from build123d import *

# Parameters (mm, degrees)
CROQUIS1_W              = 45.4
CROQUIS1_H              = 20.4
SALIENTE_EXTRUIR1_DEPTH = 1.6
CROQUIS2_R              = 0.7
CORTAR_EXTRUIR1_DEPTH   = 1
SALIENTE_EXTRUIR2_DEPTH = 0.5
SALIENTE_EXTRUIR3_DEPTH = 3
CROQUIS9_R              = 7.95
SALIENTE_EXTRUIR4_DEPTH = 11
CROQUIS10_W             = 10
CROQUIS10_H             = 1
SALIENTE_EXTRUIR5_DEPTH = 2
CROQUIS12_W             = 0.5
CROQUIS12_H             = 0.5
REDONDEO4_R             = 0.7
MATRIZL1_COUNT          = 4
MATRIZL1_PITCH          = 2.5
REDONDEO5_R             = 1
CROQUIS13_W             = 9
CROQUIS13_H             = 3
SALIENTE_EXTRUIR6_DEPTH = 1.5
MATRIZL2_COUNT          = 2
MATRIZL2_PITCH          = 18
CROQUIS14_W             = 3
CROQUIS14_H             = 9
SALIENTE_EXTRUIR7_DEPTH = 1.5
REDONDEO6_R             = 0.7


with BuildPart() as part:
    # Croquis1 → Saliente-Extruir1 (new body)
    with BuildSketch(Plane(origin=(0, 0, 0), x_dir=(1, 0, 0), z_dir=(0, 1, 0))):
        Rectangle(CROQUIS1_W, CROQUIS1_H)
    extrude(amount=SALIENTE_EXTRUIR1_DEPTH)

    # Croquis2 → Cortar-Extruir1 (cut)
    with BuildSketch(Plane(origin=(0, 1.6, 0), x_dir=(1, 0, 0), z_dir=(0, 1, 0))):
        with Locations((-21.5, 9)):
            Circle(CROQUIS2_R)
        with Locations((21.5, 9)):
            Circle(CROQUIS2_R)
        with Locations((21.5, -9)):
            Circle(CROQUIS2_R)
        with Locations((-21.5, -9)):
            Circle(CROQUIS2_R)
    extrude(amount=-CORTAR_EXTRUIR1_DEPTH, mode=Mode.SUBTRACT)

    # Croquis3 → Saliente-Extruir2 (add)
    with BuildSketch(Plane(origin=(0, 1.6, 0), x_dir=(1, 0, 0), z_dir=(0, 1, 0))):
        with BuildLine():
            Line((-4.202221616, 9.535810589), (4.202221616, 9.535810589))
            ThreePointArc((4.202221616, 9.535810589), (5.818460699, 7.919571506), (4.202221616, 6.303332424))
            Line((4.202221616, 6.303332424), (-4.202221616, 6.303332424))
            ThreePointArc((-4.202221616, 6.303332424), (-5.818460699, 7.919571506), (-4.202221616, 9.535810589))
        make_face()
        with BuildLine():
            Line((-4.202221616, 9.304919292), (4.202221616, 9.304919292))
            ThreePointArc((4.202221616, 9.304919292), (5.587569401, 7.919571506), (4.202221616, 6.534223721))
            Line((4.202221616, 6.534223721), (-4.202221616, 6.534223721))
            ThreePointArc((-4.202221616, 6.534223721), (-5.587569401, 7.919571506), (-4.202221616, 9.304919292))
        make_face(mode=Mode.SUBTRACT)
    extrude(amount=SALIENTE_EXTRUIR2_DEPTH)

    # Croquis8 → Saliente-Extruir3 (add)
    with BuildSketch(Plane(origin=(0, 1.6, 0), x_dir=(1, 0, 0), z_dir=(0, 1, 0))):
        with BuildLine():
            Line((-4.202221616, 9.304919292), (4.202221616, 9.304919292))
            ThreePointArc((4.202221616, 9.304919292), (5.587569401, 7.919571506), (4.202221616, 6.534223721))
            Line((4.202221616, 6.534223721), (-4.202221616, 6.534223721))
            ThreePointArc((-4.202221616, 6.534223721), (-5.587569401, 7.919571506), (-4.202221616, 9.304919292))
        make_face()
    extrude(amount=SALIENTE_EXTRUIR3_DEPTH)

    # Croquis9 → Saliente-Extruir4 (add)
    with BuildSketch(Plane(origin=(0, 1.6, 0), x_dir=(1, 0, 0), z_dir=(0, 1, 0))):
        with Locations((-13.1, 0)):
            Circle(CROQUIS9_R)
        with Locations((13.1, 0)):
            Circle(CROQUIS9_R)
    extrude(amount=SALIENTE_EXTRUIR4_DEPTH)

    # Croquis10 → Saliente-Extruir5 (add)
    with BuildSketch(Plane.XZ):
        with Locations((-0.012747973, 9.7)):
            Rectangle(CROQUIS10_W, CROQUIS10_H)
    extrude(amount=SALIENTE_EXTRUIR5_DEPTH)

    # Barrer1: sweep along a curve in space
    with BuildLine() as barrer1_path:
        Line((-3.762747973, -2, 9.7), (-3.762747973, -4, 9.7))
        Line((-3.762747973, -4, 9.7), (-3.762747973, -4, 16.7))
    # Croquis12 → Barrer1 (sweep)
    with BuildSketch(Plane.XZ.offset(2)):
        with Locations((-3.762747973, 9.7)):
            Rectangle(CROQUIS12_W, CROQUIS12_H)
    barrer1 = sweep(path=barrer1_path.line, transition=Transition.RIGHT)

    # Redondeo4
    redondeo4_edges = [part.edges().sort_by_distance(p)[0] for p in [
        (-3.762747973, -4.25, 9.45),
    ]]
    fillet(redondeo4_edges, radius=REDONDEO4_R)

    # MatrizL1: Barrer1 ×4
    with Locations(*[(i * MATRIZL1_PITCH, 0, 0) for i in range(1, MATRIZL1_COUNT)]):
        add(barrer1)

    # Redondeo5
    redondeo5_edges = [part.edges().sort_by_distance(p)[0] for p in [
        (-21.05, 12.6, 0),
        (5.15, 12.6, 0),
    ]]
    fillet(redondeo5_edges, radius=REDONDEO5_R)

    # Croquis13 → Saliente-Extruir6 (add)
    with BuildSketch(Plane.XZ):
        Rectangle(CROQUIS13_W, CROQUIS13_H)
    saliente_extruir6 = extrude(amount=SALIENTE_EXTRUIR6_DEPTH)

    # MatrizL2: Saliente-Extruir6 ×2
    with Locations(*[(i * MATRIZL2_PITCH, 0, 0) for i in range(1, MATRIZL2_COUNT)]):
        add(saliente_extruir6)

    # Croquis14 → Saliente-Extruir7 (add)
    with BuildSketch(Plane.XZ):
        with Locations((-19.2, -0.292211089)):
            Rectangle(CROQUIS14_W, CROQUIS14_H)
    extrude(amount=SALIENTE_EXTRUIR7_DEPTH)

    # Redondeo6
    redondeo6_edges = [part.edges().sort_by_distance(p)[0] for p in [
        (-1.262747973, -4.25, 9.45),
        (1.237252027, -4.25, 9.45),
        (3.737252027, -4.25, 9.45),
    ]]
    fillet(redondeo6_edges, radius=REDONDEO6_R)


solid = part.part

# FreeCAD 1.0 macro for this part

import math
import FreeCAD as App
import Part
import Sketcher
Q = App.Units.Quantity


def edges_at(feature, points):
    """Names of the edges that pass closest to the given points."""
    edges = feature.Shape.Edges
    near = lambda p: min(range(len(edges)), key=lambda i: edges[i].distToShape(Part.Vertex(*p))[0])
    return sorted({f"Edge{near(p) + 1}" for p in points})

doc = App.newDocument("Part")
body = doc.addObject("PartDesign::Body", "Body")

# Sketch on XZ plane
sketch1 = body.newObject("Sketcher::SketchObject", "Sketch")
sketch1.AttachmentSupport = (doc.getObject("XZ_Plane"), [""])
sketch1.MapMode = "FlatFace"
sketch1.addGeometry([
    Part.LineSegment(App.Vector(-23, -10, 0), App.Vector(-23, 10, 0)),
    Part.LineSegment(App.Vector(-23, 10, 0), App.Vector(23, 10, 0)),
    Part.LineSegment(App.Vector(23, 10, 0), App.Vector(23, -10, 0)),
    Part.LineSegment(App.Vector(23, -10, 0), App.Vector(-23, -10, 0)),
], False)
sketch1.addConstraint([
    Sketcher.Constraint("Coincident", 0, 2, 1, 1),
    Sketcher.Constraint("Coincident", 1, 2, 2, 1),
    Sketcher.Constraint("Coincident", 2, 2, 3, 1),
    Sketcher.Constraint("Coincident", 3, 2, 0, 1),
    Sketcher.Constraint("Vertical", 0),
    Sketcher.Constraint("Horizontal", 1),
    Sketcher.Constraint("Vertical", 2),
    Sketcher.Constraint("Horizontal", 3),
    Sketcher.Constraint("Symmetric", 0, 2, 2, 2, -1, 1),
    Sketcher.Constraint("DistanceX", 1, 1, 1, 2, Q("45.4 mm")),
    Sketcher.Constraint("DistanceY", 0, 1, 0, 2, Q("20.4 mm")),
])
pad1 = body.newObject("PartDesign::Pad", "Pad")
pad1.Profile = sketch1
pad1.Length = 1.6
pad1.Reversed = True

# Sketch on XZ plane
sketch2 = body.newObject("Sketcher::SketchObject", "Sketch001")
sketch2.AttachmentSupport = (doc.getObject("XZ_Plane"), [""])
sketch2.MapMode = "FlatFace"
sketch2.AttachmentOffset = App.Placement(App.Vector(0, 0, -1.6), App.Rotation())
sketch2.addGeometry([
    Part.Circle(App.Vector(-21.5, -9, 0), App.Vector(0, 0, 1), 0.7),
    Part.Circle(App.Vector(21.5, -9, 0), App.Vector(0, 0, 1), 0.7),
    Part.Circle(App.Vector(21.5, 9, 0), App.Vector(0, 0, 1), 0.7),
    Part.Circle(App.Vector(-21.5, 9, 0), App.Vector(0, 0, 1), 0.7),
], False)
sketch2.addConstraint([
    Sketcher.Constraint("Equal", 0, 1),
    Sketcher.Constraint("Equal", 1, 2),
    Sketcher.Constraint("Equal", 2, 3),
    Sketcher.Constraint("Symmetric", 0, 3, 2, 3, -1, 1),
    Sketcher.Constraint("Symmetric", 1, 3, 3, 3, -1, 1),
    Sketcher.Constraint("Symmetric", 0, 3, 1, 3, -2),
    Sketcher.Constraint("Diameter", 0, Q("1.4 mm")),
    Sketcher.Constraint("DistanceY", 0, 3, -1, 1, Q("9 mm")),
    Sketcher.Constraint("DistanceX", 0, 3, 1, 3, Q("43 mm")),
])
pocket1 = body.newObject("PartDesign::Pocket", "Pocket")
pocket1.Profile = sketch2
pocket1.Length = 1
pocket1.Reversed = True

# Sketch on XZ plane
sketch3 = body.newObject("Sketcher::SketchObject", "Sketch002")
sketch3.AttachmentSupport = (doc.getObject("XZ_Plane"), [""])
sketch3.MapMode = "FlatFace"
sketch3.AttachmentOffset = App.Placement(App.Vector(0, 0, -1.6), App.Rotation())
sketch3.addGeometry([
    Part.LineSegment(App.Vector(4.2, -9.5, 0), App.Vector(-4.2, -9.5, 0)),  # 0
    Part.ArcOfCircle(Part.Circle(App.Vector(-4.2, -7.9, 0), App.Vector(0, 0, 1), 1.6), math.radians(90), math.radians(270)),  # 1
    Part.LineSegment(App.Vector(-4.2, -6.3, 0), App.Vector(4.2, -6.3, 0)),  # 2
    Part.ArcOfCircle(Part.Circle(App.Vector(4.2, -7.9, 0), App.Vector(0, 0, 1), 1.6), math.radians(-90), math.radians(90)),  # 3
    Part.LineSegment(App.Vector(-4.2, -9.3, 0), App.Vector(4.2, -9.3, 0)),  # 4
    Part.ArcOfCircle(Part.Circle(App.Vector(4.2, -7.9, 0), App.Vector(0, 0, 1), 1.4), math.radians(-90), math.radians(90)),  # 5
    Part.LineSegment(App.Vector(4.2, -6.5, 0), App.Vector(-4.2, -6.5, 0)),  # 6
    Part.ArcOfCircle(Part.Circle(App.Vector(-4.2, -7.9, 0), App.Vector(0, 0, 1), 1.4), math.radians(90), math.radians(270)),  # 7
], False)
sketch3.addConstraint([
    Sketcher.Constraint("Tangent", 0, 2, 1, 2),
    Sketcher.Constraint("Tangent", 1, 1, 2, 1),
    Sketcher.Constraint("Tangent", 2, 2, 3, 2),
    Sketcher.Constraint("Tangent", 3, 1, 0, 1),
    Sketcher.Constraint("Tangent", 4, 2, 5, 1),
    Sketcher.Constraint("Tangent", 5, 2, 6, 1),
    Sketcher.Constraint("Tangent", 6, 2, 7, 1),
    Sketcher.Constraint("Tangent", 7, 2, 4, 1),
    Sketcher.Constraint("Horizontal", 0),
    Sketcher.Constraint("Horizontal", 2),
    Sketcher.Constraint("Horizontal", 4),
    Sketcher.Constraint("Horizontal", 6),
    Sketcher.Constraint("Coincident", 5, 3, 3, 3),
    Sketcher.Constraint("Vertical", 7, 3, 0, 2),
    Sketcher.Constraint("Radius", 1, Q("1.616239 mm")),
    Sketcher.Constraint("Radius", 5, Q("1.385348 mm")),
    Sketcher.Constraint("DistanceX", 0, 2, 0, 1, Q("8.404443 mm")),
    Sketcher.Constraint("DistanceX", 1, 3, -1, 1, Q("4.202222 mm")),
    Sketcher.Constraint("DistanceY", 1, 3, -1, 1, Q("7.919572 mm")),
])
pad2 = body.newObject("PartDesign::Pad", "Pad001")
pad2.Profile = sketch3
pad2.Length = 0.5
pad2.Reversed = True

# Sketch on XZ plane
sketch4 = body.newObject("Sketcher::SketchObject", "Sketch003")
sketch4.AttachmentSupport = (doc.getObject("XZ_Plane"), [""])
sketch4.MapMode = "FlatFace"
sketch4.AttachmentOffset = App.Placement(App.Vector(0, 0, -1.6), App.Rotation())
sketch4.addGeometry([
    Part.LineSegment(App.Vector(4.2, -9.3, 0), App.Vector(-4.2, -9.3, 0)),
    Part.ArcOfCircle(Part.Circle(App.Vector(-4.2, -7.9, 0), App.Vector(0, 0, 1), 1.4), math.radians(90), math.radians(270)),
    Part.LineSegment(App.Vector(-4.2, -6.5, 0), App.Vector(4.2, -6.5, 0)),
    Part.ArcOfCircle(Part.Circle(App.Vector(4.2, -7.9, 0), App.Vector(0, 0, 1), 1.4), math.radians(-90), math.radians(90)),
], False)
sketch4.addConstraint([
    Sketcher.Constraint("Tangent", 0, 2, 1, 2),
    Sketcher.Constraint("Tangent", 1, 1, 2, 1),
    Sketcher.Constraint("Tangent", 2, 2, 3, 2),
    Sketcher.Constraint("Tangent", 3, 1, 0, 1),
    Sketcher.Constraint("Horizontal", 0),
    Sketcher.Constraint("Horizontal", 2),
    Sketcher.Constraint("Radius", 1, Q("1.385348 mm")),
    Sketcher.Constraint("DistanceX", 0, 2, 0, 1, Q("8.404443 mm")),
    Sketcher.Constraint("DistanceX", 1, 3, -1, 1, Q("4.202222 mm")),
    Sketcher.Constraint("DistanceY", 1, 3, -1, 1, Q("7.919572 mm")),
])
pad3 = body.newObject("PartDesign::Pad", "Pad002")
pad3.Profile = sketch4
pad3.Length = 3
pad3.Reversed = True

# Sketch on XZ plane
sketch5 = body.newObject("Sketcher::SketchObject", "Sketch004")
sketch5.AttachmentSupport = (doc.getObject("XZ_Plane"), [""])
sketch5.MapMode = "FlatFace"
sketch5.AttachmentOffset = App.Placement(App.Vector(0, 0, -1.6), App.Rotation())
sketch5.addGeometry([
    Part.Circle(App.Vector(-13, 0, 0), App.Vector(0, 0, 1), 8),
    Part.Circle(App.Vector(13, 0, 0), App.Vector(0, 0, 1), 8),
], False)
sketch5.addConstraint([
    Sketcher.Constraint("Equal", 0, 1),
    Sketcher.Constraint("Symmetric", 0, 3, 1, 3, -1, 1),
    Sketcher.Constraint("PointOnObject", 0, 3, -1),
    Sketcher.Constraint("Diameter", 0, Q("15.9 mm")),
    Sketcher.Constraint("DistanceX", 0, 3, -1, 1, Q("13.1 mm")),
])
pad4 = body.newObject("PartDesign::Pad", "Pad003")
pad4.Profile = sketch5
pad4.Length = 11
pad4.Reversed = True

# Sketch on XZ plane
sketch6 = body.newObject("Sketcher::SketchObject", "Sketch005")
sketch6.AttachmentSupport = (doc.getObject("XZ_Plane"), [""])
sketch6.MapMode = "FlatFace"
sketch6.addGeometry([
    Part.LineSegment(App.Vector(-5, 10.2, 0), App.Vector(-5, 9.2, 0)),
    Part.LineSegment(App.Vector(-5, 9.2, 0), App.Vector(5, 9.2, 0)),
    Part.LineSegment(App.Vector(5, 9.2, 0), App.Vector(5, 10.2, 0)),
    Part.LineSegment(App.Vector(5, 10.2, 0), App.Vector(-5, 10.2, 0)),
], False)
sketch6.addConstraint([
    Sketcher.Constraint("Coincident", 0, 2, 1, 1),
    Sketcher.Constraint("Coincident", 1, 2, 2, 1),
    Sketcher.Constraint("Coincident", 2, 2, 3, 1),
    Sketcher.Constraint("Coincident", 3, 2, 0, 1),
    Sketcher.Constraint("Vertical", 0),
    Sketcher.Constraint("Horizontal", 1),
    Sketcher.Constraint("Vertical", 2),
    Sketcher.Constraint("Horizontal", 3),
    Sketcher.Constraint("DistanceX", 1, 1, 1, 2, Q("10 mm")),
    Sketcher.Constraint("DistanceY", 0, 2, 0, 1, Q("1 mm")),
    Sketcher.Constraint("DistanceY", -1, 1, 0, 2, Q("9.2 mm")),
    Sketcher.Constraint("DistanceX", 0, 2, -1, 1, Q("5.012748 mm")),
])
pad5 = body.newObject("PartDesign::Pad", "Pad004")
pad5.Profile = sketch6
pad5.Length = 2

# Sketch on XZ plane
sketch7 = body.newObject("Sketcher::SketchObject", "Sketch006")
sketch7.AttachmentSupport = (doc.getObject("XZ_Plane"), [""])
sketch7.MapMode = "FlatFace"
sketch7.AttachmentOffset = App.Placement(App.Vector(0, 0, 2), App.Rotation())
sketch7.addGeometry([
    Part.LineSegment(App.Vector(-4.01, 9.95, 0), App.Vector(-4.01, 9.45, 0)),
    Part.LineSegment(App.Vector(-4.01, 9.45, 0), App.Vector(-3.51, 9.45, 0)),
    Part.LineSegment(App.Vector(-3.51, 9.45, 0), App.Vector(-3.51, 9.95, 0)),
    Part.LineSegment(App.Vector(-3.51, 9.95, 0), App.Vector(-4.01, 9.95, 0)),
], False)
sketch7.addConstraint([
    Sketcher.Constraint("Coincident", 0, 2, 1, 1),
    Sketcher.Constraint("Coincident", 1, 2, 2, 1),
    Sketcher.Constraint("Coincident", 2, 2, 3, 1),
    Sketcher.Constraint("Coincident", 3, 2, 0, 1),
    Sketcher.Constraint("Vertical", 0),
    Sketcher.Constraint("Horizontal", 1),
    Sketcher.Constraint("Vertical", 2),
    Sketcher.Constraint("Horizontal", 3),
    Sketcher.Constraint("Equal", 3, 0),
    Sketcher.Constraint("DistanceX", 1, 1, 1, 2, Q("0.5 mm")),
    Sketcher.Constraint("DistanceY", -1, 1, 0, 2, Q("9.45 mm")),
    Sketcher.Constraint("DistanceX", 0, 2, -1, 1, Q("4.012748 mm")),
])

# Sketch on YZ plane
sketch8 = body.newObject("Sketcher::SketchObject", "Sketch007")
sketch8.AttachmentSupport = (doc.getObject("YZ_Plane"), [""])
sketch8.MapMode = "FlatFace"
sketch8.AttachmentOffset = App.Placement(App.Vector(0, 0, -3.762748), App.Rotation())
sketch8.addGeometry([
    Part.LineSegment(App.Vector(-2, 9.7, 0), App.Vector(-4, 9.7, 0)),
    Part.LineSegment(App.Vector(-4, 9.7, 0), App.Vector(-4, 16.7, 0)),
], False)
sketch8.addConstraint([
    Sketcher.Constraint("Coincident", 0, 2, 1, 1),
    Sketcher.Constraint("Horizontal", 0),
    Sketcher.Constraint("Vertical", 1),
    Sketcher.Constraint("DistanceX", 0, 2, 0, 1, Q("2 mm")),
    Sketcher.Constraint("DistanceY", 1, 1, 1, 2, Q("7 mm")),
    Sketcher.Constraint("DistanceX", 0, 1, -1, 1, Q("2 mm")),
    Sketcher.Constraint("DistanceY", -1, 1, 0, 1, Q("9.7 mm")),
])
doc.recompute()

additivepipe = body.newObject("PartDesign::AdditivePipe", "AdditivePipe")
additivepipe.Profile = sketch7
additivepipe.Spine = (sketch8, ["Edge1", "Edge2"])
additivepipe.Transition = "Right corner"
doc.recompute()

fillet = body.newObject("PartDesign::Fillet", "Fillet")
fillet.Base = (additivepipe, edges_at(additivepipe, [(-3.763, -4.25, 9.45)]))
fillet.Radius = 0.7
doc.recompute()

linearpattern = body.newObject("PartDesign::LinearPattern", "LinearPattern")
linearpattern.Originals = [additivepipe]
linearpattern.Direction = (doc.getObject("X_Axis"), [""])
linearpattern.Mode = "offset"
linearpattern.Offset = 2.5
linearpattern.Occurrences = 4
body.Tip = linearpattern
doc.recompute()

fillet2 = body.newObject("PartDesign::Fillet", "Fillet001")
fillet2.Base = (linearpattern, edges_at(linearpattern, [(-21.05, 12.6, 0), (5.15, 12.6, 0)]))
fillet2.Radius = 1

# Sketch on XZ plane
sketch9 = body.newObject("Sketcher::SketchObject", "Sketch008")
sketch9.AttachmentSupport = (doc.getObject("XZ_Plane"), [""])
sketch9.MapMode = "FlatFace"
sketch9.addGeometry([
    Part.LineSegment(App.Vector(-4.5, 1.5, 0), App.Vector(-4.5, -1.5, 0)),
    Part.LineSegment(App.Vector(-4.5, -1.5, 0), App.Vector(4.5, -1.5, 0)),
    Part.LineSegment(App.Vector(4.5, -1.5, 0), App.Vector(4.5, 1.5, 0)),
    Part.LineSegment(App.Vector(4.5, 1.5, 0), App.Vector(-4.5, 1.5, 0)),
], False)
sketch9.addConstraint([
    Sketcher.Constraint("Coincident", 0, 2, 1, 1),
    Sketcher.Constraint("Coincident", 1, 2, 2, 1),
    Sketcher.Constraint("Coincident", 2, 2, 3, 1),
    Sketcher.Constraint("Coincident", 3, 2, 0, 1),
    Sketcher.Constraint("Vertical", 0),
    Sketcher.Constraint("Horizontal", 1),
    Sketcher.Constraint("Vertical", 2),
    Sketcher.Constraint("Horizontal", 3),
    Sketcher.Constraint("Symmetric", 0, 2, 2, 2, -1, 1),
    Sketcher.Constraint("DistanceX", 1, 1, 1, 2, Q("9 mm")),
    Sketcher.Constraint("DistanceY", 0, 2, 0, 1, Q("3 mm")),
])
pad6 = body.newObject("PartDesign::Pad", "Pad005")
pad6.Profile = sketch9
pad6.Length = 1.5
doc.recompute()

linearpattern2 = body.newObject("PartDesign::LinearPattern", "LinearPattern001")
linearpattern2.Originals = [pad6]
linearpattern2.Direction = (doc.getObject("X_Axis"), [""])
linearpattern2.Mode = "offset"
linearpattern2.Offset = 18
linearpattern2.Occurrences = 2
body.Tip = linearpattern2

# Sketch on XZ plane
sketch10 = body.newObject("Sketcher::SketchObject", "Sketch009")
sketch10.AttachmentSupport = (doc.getObject("XZ_Plane"), [""])
sketch10.MapMode = "FlatFace"
sketch10.addGeometry([
    Part.LineSegment(App.Vector(-20.7, 4.2, 0), App.Vector(-20.7, -4.8, 0)),
    Part.LineSegment(App.Vector(-20.7, -4.8, 0), App.Vector(-17.7, -4.8, 0)),
    Part.LineSegment(App.Vector(-17.7, -4.8, 0), App.Vector(-17.7, 4.2, 0)),
    Part.LineSegment(App.Vector(-17.7, 4.2, 0), App.Vector(-20.7, 4.2, 0)),
], False)
sketch10.addConstraint([
    Sketcher.Constraint("Coincident", 0, 2, 1, 1),
    Sketcher.Constraint("Coincident", 1, 2, 2, 1),
    Sketcher.Constraint("Coincident", 2, 2, 3, 1),
    Sketcher.Constraint("Coincident", 3, 2, 0, 1),
    Sketcher.Constraint("Vertical", 0),
    Sketcher.Constraint("Horizontal", 1),
    Sketcher.Constraint("Vertical", 2),
    Sketcher.Constraint("Horizontal", 3),
    Sketcher.Constraint("DistanceX", 1, 1, 1, 2, Q("3 mm")),
    Sketcher.Constraint("DistanceY", 0, 2, 0, 1, Q("9 mm")),
    Sketcher.Constraint("DistanceX", 0, 2, -1, 1, Q("20.7 mm")),
    Sketcher.Constraint("DistanceY", 0, 2, -1, 1, Q("4.792211 mm")),
])
pad7 = body.newObject("PartDesign::Pad", "Pad006")
pad7.Profile = sketch10
pad7.Length = 1.5
doc.recompute()

fillet3 = body.newObject("PartDesign::Fillet", "Fillet002")
fillet3.Base = (pad7, edges_at(pad7, [(-1.263, -4.25, 9.45), (1.237, -4.25, 9.45), (3.737, -4.25, 9.45)]))
fillet3.Radius = 0.7

doc.recompute()
